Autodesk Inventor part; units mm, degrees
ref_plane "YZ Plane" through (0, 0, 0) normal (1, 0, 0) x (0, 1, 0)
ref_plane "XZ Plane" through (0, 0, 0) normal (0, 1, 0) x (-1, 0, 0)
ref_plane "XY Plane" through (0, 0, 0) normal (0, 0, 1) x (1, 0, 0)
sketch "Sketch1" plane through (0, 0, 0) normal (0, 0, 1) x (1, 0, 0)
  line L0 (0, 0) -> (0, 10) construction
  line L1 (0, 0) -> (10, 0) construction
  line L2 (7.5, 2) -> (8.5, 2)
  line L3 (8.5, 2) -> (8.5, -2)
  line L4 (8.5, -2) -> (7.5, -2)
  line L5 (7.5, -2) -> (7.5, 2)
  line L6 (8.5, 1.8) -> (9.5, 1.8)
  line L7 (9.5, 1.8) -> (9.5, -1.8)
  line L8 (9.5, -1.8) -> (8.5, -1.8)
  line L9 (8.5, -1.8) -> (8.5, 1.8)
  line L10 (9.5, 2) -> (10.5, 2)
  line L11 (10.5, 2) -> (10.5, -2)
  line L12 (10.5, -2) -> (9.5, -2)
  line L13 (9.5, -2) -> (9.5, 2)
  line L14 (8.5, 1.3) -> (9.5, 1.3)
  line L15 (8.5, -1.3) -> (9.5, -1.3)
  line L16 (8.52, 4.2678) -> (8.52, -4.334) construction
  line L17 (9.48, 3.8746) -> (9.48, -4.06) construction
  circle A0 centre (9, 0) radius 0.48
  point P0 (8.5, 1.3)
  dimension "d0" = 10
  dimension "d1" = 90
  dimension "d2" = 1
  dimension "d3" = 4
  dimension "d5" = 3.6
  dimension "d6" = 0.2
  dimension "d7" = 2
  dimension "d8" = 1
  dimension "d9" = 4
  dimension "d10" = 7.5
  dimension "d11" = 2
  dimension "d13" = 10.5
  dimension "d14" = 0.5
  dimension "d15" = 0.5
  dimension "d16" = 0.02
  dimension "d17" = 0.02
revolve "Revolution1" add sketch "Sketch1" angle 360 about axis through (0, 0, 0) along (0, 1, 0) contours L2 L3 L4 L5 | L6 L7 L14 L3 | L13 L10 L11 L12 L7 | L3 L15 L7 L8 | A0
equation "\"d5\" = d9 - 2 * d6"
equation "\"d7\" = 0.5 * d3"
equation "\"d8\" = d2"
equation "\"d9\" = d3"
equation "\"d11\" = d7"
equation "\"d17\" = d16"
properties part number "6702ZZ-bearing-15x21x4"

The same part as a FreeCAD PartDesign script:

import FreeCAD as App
import Part
import Sketcher
from FreeCAD import Vector
Q = App.Units.Quantity


def add_polygon(sketch, points):
    """Adds a closed chain of lines whose ends are joined by coincident constraints."""
    first, n = sketch.GeometryCount, len(points)
    for a, b in zip(points, points[1:] + points[:1]):
        sketch.addGeometry(Part.LineSegment(App.Vector(*a, 0), App.Vector(*b, 0)), False)
    for i in range(n):
        sketch.addConstraint(Sketcher.Constraint("Coincident", first + i, 2, first + (i + 1) % n, 1))

doc = App.newDocument("Part")
body = doc.addObject("PartDesign::Body", "Body")
body.AllowCompound = True

sketch1 = body.newObject("Sketcher::SketchObject", "Sketch")
sketch1.AttachmentSupport = (doc.getObject("XY_Plane"), [""])
sketch1.MapMode = "FlatFace"
add_polygon(sketch1, [(8.5, 2), (7.5, 2), (7.5, -2), (8.5, -2), (8.5, -1.8), (9.5, -1.8), (9.5, -2), (10.5, -2), (10.5, 2), (9.5, 2), (9.5, 1.8), (8.5, 1.8)])
add_polygon(sketch1, [(8.5, -1.3), (8.5, 1.3), (9.5, 1.3), (9.5, -1.3)])
sketch1.addGeometry(Part.Circle(Vector(9, 0, 0), Vector(0, 0, 1), 0.48), False)
sketch1.addConstraint(Sketcher.Constraint("Horizontal", 0))
sketch1.addConstraint(Sketcher.Constraint("Vertical", 1))
sketch1.addConstraint(Sketcher.Constraint("Horizontal", 2))
sketch1.addConstraint(Sketcher.Constraint("Vertical", 3))
sketch1.addConstraint(Sketcher.Constraint("Horizontal", 4))
sketch1.addConstraint(Sketcher.Constraint("Vertical", 5))
sketch1.addConstraint(Sketcher.Constraint("Horizontal", 6))
sketch1.addConstraint(Sketcher.Constraint("Vertical", 7))
sketch1.addConstraint(Sketcher.Constraint("Horizontal", 8))
sketch1.addConstraint(Sketcher.Constraint("Vertical", 9))
sketch1.addConstraint(Sketcher.Constraint("Horizontal", 10))
sketch1.addConstraint(Sketcher.Constraint("Vertical", 11))
sketch1.addConstraint(Sketcher.Constraint("Vertical", 12))
sketch1.addConstraint(Sketcher.Constraint("Horizontal", 13))
sketch1.addConstraint(Sketcher.Constraint("Vertical", 14))
sketch1.addConstraint(Sketcher.Constraint("Horizontal", 15))
sketch1.addConstraint(Sketcher.Constraint("Symmetric", 5, 2, 8, 2, -1))
sketch1.addConstraint(Sketcher.Constraint("Symmetric", 3, 2, 10, 2, -1))
sketch1.addConstraint(Sketcher.Constraint("PointOnObject", 16, 3, -1))
sketch1.addConstraint(Sketcher.Constraint("Horizontal", 2, 2, 5, 2))
sketch1.addConstraint(Sketcher.Constraint("Horizontal", 0, 2, 7, 2))
sketch1.addConstraint(Sketcher.Constraint("Vertical", 11, 2, 12, 2))
sketch1.addConstraint(Sketcher.Constraint("Vertical", 9, 2, 13, 2))
sketch1.addConstraint(Sketcher.Constraint("Equal", 2, 4))
sketch1.addConstraint(Sketcher.Constraint("Equal", 4, 6))
sketch1.addConstraint(Sketcher.Constraint("DistanceX", 0, 2, 0, 1, Q("1 mm")))
sketch1.addConstraint(Sketcher.Constraint("DistanceY", 1, 2, 1, 1, Q("4 mm")))
sketch1.addConstraint(Sketcher.Constraint("DistanceY", 3, 1, 3, 2, Q("0.2 mm")))
sketch1.addConstraint(Sketcher.Constraint("DistanceX", -1, 1, 0, 2, Q("7.5 mm")))
sketch1.addConstraint(Sketcher.Constraint("DistanceX", 2, 2, 16, 3, Q("0.5 mm")))
sketch1.addConstraint(Sketcher.Constraint("DistanceY", 12, 2, 10, 2, Q("0.5 mm")))
sketch1.addConstraint(Sketcher.Constraint("DistanceY", 4, 2, 14, 2, Q("0.5 mm")))
sketch1.addConstraint(Sketcher.Constraint("Diameter", 16, Q("0.96 mm")))
revolution = body.newObject("PartDesign::Revolution", "Revolution")
revolution.Profile = sketch1
revolution.ReferenceAxis = (sketch1, ["V_Axis"])
revolution.Angle = 360

doc.recompute()
